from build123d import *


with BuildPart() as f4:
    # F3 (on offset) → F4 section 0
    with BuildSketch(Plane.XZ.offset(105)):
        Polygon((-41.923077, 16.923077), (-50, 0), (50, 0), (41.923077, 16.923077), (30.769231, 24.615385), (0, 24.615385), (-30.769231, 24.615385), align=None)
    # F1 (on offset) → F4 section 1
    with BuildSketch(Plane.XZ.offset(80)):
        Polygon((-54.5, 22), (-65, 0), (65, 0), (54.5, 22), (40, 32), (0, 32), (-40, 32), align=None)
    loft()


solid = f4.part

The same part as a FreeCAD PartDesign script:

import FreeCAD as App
import Part
import Sketcher
from FreeCAD import Vector


def add_polygon(sketch, points):
    """Adds a closed chain of lines whose ends are joined by coincident constraints."""
    first, n = sketch.GeometryCount, len(points)
    for a, b in zip(points, points[1:] + points[:1]):
        sketch.addGeometry(Part.LineSegment(App.Vector(*a, 0), App.Vector(*b, 0)), False)
    for i in range(n):
        sketch.addConstraint(Sketcher.Constraint("Coincident", first + i, 2, first + (i + 1) % n, 1))

doc = App.newDocument("Part")
body = doc.addObject("PartDesign::Body", "Body")

sketch1 = body.newObject("Sketcher::SketchObject", "Sketch")
sketch1.AttachmentSupport = (doc.getObject("XZ_Plane"), [""])
sketch1.MapMode = "FlatFace"
sketch1.AttachmentOffset = App.Placement(Vector(0, 0, 105), App.Rotation())
add_polygon(sketch1, [(-42, 17), (-50, 0), (50, 0), (42, 17), (31, 25), (-31, 25)])
sketch1.addConstraint([
    Sketcher.Constraint("Horizontal", 1),
    Sketcher.Constraint("Horizontal", 4),
    Sketcher.Constraint("Symmetric", 0, 2, 1, 2, -1, 1),
    Sketcher.Constraint("Symmetric", 2, 2, 5, 2, -2),
    Sketcher.Constraint("Equal", 3, 5),
    Sketcher.Constraint("DistanceX", 1, 1, 1, 2, 100.0),
    Sketcher.Constraint("DistanceX", 4, 2, 4, 1, 61.538462),
    Sketcher.Constraint("DistanceY", 2, 2, 3, 2, 7.692308),
    Sketcher.Constraint("Distance", 0, 18.751726),
    Sketcher.Constraint("Distance", 3, 13.549165),
])

sketch2 = body.newObject("Sketcher::SketchObject", "Sketch001")
sketch2.AttachmentSupport = (doc.getObject("XZ_Plane"), [""])
sketch2.MapMode = "FlatFace"
sketch2.AttachmentOffset = App.Placement(Vector(0, 0, 80), App.Rotation())
add_polygon(sketch2, [(-54, 22), (-65, 0), (65, 0), (54, 22), (40, 32), (-40, 32)])
sketch2.addConstraint([
    Sketcher.Constraint("Horizontal", 1),
    Sketcher.Constraint("Horizontal", 4),
    Sketcher.Constraint("Symmetric", 0, 2, 1, 2, -1, 1),
    Sketcher.Constraint("Symmetric", 2, 2, 5, 2, -2),
    Sketcher.Constraint("Equal", 3, 5),
    Sketcher.Constraint("DistanceX", 1, 1, 1, 2, 130.0),
    Sketcher.Constraint("DistanceX", 4, 2, 4, 1, 80.0),
    Sketcher.Constraint("DistanceY", -1, 1, 2, 2, 22.0),
    Sketcher.Constraint("DistanceY", -1, 1, 3, 2, 32.0),
    Sketcher.Constraint("DistanceX", 5, 2, 2, 2, 109.0),
])

additiveloft = body.newObject("PartDesign::AdditiveLoft", "AdditiveLoft")
additiveloft.Profile = sketch1
additiveloft.Sections = [sketch2]

doc.recompute()
